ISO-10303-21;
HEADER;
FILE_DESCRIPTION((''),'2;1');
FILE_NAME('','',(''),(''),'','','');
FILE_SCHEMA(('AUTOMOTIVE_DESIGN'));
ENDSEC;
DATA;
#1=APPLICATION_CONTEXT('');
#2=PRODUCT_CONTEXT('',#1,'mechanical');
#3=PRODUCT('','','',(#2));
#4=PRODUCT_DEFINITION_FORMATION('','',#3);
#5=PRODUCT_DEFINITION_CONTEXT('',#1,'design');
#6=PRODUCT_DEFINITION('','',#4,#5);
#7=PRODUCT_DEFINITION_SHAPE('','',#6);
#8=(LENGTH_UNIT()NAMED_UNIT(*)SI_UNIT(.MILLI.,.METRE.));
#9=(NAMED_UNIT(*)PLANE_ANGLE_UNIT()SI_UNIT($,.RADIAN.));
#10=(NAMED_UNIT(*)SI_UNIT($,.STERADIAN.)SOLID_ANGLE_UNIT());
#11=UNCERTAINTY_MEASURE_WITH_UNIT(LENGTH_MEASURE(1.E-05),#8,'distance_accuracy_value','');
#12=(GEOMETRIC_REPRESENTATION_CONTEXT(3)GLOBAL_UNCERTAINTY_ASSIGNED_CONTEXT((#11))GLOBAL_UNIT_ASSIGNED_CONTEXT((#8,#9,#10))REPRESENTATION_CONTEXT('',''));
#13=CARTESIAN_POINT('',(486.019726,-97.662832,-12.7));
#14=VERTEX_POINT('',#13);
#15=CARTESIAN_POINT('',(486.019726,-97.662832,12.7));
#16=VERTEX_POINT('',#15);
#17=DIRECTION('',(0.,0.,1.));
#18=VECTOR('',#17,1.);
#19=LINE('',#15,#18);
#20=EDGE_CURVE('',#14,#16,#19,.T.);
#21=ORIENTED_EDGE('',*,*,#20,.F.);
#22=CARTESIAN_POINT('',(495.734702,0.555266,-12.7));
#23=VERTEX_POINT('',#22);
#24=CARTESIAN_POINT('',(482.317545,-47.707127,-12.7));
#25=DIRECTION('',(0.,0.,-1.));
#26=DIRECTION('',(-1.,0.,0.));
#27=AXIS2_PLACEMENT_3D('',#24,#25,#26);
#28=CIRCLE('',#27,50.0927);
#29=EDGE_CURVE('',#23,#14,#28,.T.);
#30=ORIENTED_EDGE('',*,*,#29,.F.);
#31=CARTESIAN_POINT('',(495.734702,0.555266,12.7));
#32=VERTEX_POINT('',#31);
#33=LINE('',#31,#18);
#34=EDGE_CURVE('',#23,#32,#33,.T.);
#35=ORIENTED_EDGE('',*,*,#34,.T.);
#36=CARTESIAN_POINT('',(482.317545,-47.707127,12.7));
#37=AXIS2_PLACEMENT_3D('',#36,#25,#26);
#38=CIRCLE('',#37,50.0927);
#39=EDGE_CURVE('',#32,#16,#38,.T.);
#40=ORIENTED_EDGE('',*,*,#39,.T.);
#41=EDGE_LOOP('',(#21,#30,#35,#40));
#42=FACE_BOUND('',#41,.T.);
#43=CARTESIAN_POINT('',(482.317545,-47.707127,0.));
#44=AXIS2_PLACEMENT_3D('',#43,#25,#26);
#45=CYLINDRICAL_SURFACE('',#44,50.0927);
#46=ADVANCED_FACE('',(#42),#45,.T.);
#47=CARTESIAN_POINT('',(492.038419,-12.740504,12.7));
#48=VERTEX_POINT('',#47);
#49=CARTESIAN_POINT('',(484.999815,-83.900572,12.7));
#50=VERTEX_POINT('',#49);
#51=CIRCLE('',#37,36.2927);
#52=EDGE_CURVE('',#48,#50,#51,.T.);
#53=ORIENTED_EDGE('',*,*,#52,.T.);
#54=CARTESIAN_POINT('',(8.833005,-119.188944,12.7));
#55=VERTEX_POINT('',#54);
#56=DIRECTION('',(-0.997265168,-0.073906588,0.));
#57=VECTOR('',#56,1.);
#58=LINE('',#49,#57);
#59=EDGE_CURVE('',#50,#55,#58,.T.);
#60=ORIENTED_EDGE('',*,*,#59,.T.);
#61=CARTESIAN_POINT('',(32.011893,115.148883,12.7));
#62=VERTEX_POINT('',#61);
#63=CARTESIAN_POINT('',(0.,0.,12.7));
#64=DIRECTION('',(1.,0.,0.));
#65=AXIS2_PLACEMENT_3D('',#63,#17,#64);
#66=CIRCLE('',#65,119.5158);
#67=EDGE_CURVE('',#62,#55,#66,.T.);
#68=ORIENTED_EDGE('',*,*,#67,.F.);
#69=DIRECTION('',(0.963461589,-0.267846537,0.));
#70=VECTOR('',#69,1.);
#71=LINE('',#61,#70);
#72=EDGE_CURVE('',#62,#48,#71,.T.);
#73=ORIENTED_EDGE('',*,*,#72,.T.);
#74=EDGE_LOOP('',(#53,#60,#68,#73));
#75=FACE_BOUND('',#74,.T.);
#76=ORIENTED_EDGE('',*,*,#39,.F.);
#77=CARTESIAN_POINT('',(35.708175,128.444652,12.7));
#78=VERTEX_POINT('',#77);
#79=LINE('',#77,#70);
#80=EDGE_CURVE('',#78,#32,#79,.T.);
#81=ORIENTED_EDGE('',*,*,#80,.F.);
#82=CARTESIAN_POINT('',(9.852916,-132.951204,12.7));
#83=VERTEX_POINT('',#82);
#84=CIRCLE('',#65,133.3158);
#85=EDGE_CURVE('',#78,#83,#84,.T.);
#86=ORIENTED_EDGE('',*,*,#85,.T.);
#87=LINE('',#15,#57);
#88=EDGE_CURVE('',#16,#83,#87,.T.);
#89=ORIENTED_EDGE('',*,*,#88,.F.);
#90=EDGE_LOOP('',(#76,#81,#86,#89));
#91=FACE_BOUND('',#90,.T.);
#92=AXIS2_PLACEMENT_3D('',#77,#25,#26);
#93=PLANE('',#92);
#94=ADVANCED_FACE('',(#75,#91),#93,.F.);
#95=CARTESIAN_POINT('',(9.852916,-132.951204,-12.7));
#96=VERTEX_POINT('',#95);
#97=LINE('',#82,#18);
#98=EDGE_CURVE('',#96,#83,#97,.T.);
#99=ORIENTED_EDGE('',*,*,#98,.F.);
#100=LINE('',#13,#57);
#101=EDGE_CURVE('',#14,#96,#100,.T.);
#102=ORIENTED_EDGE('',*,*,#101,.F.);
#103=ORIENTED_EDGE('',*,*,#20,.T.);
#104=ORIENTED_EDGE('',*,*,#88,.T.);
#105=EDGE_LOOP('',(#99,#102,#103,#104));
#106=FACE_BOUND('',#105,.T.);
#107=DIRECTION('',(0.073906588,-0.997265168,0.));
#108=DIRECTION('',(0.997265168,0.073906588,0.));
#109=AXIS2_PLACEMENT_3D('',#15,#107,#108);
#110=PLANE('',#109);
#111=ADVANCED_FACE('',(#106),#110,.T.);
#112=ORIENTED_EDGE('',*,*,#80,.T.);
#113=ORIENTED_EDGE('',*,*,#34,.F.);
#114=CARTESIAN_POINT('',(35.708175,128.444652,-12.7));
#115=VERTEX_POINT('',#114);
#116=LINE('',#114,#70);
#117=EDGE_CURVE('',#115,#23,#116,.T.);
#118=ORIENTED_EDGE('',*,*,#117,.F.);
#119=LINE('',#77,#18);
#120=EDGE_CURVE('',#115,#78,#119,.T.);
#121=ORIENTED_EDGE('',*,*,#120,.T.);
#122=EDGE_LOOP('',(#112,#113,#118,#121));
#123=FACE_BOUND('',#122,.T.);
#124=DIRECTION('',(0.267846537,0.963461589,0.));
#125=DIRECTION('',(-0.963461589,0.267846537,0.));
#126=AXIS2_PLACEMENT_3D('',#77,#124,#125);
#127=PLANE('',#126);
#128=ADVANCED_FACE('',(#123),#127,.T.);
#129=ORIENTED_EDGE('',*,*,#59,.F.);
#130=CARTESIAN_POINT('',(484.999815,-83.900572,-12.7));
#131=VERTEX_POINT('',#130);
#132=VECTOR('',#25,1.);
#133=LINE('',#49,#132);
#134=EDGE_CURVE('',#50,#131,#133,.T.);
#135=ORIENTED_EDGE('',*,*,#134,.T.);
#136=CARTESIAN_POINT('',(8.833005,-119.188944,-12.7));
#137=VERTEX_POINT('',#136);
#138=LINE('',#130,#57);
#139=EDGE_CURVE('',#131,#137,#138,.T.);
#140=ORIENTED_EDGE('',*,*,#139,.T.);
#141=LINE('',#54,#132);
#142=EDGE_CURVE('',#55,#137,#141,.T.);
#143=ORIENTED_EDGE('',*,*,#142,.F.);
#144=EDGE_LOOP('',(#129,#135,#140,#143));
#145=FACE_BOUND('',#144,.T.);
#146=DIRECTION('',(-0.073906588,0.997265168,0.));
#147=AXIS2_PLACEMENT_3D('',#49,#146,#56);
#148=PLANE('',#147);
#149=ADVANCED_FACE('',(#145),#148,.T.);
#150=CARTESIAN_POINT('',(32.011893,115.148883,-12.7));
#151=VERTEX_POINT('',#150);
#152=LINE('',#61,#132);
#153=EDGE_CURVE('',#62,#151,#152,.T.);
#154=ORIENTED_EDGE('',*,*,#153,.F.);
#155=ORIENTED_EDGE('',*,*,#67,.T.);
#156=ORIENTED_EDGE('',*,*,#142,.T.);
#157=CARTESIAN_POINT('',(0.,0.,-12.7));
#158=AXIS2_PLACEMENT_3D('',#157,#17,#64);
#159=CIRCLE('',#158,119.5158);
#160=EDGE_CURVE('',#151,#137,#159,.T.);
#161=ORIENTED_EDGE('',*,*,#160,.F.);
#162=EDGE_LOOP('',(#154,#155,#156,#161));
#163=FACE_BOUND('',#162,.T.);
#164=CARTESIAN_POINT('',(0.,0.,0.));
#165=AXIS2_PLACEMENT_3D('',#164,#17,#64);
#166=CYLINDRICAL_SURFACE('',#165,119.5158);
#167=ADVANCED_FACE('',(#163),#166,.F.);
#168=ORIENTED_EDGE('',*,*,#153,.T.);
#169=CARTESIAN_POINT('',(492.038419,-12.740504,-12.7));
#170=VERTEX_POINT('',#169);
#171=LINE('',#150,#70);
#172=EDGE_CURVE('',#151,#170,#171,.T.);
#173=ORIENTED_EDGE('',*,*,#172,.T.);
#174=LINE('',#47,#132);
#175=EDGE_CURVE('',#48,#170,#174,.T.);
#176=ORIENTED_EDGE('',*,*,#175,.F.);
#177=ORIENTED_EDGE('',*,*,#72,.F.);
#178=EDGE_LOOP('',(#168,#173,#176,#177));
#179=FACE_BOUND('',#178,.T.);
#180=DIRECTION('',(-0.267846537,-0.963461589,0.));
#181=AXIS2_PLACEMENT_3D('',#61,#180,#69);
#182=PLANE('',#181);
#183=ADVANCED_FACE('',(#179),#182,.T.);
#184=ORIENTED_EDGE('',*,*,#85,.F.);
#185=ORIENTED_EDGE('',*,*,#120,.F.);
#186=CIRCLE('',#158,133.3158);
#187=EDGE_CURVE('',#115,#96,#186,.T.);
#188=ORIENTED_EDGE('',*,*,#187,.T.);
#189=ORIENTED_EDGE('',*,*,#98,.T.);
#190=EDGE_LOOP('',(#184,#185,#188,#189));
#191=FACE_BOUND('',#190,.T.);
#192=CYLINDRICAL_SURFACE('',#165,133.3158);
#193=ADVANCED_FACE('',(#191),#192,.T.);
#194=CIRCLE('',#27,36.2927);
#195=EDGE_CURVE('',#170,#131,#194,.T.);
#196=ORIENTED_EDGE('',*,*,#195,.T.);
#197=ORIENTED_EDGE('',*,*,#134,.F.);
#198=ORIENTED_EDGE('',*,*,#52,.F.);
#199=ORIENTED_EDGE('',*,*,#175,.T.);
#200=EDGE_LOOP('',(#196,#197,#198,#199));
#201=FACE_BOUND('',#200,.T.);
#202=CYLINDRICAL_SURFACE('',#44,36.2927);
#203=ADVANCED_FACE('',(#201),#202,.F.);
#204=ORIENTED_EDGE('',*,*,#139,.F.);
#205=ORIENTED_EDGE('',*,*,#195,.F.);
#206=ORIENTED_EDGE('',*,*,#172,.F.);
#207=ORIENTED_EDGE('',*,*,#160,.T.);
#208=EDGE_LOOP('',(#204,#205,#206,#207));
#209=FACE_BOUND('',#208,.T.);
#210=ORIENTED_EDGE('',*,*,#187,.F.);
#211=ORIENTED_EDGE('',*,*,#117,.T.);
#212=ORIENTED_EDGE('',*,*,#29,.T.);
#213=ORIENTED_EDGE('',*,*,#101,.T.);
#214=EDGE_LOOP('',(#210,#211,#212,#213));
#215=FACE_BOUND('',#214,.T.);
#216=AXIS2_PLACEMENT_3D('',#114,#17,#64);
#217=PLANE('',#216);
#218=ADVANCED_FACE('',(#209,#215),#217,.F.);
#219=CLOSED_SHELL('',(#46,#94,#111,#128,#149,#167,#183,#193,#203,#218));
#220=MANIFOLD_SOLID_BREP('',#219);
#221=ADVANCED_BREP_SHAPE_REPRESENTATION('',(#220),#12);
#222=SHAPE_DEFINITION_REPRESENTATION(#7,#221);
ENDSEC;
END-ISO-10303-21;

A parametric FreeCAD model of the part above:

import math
import FreeCAD as App
import Part
import Sketcher

V = App.Vector
Q = App.Units.Quantity

doc = App.newDocument("Part")
body = doc.addObject("PartDesign::Body", "Body")

# Sketch on YZ plane
sketch1 = body.newObject("Sketcher::SketchObject", "Sketch")
sketch1.AttachmentSupport = (doc.getObject("YZ_Plane"), [""])
sketch1.MapMode = "FlatFace"
sketch1.addGeometry([
    Part.LineSegment(V(133.3158, 12.7, 0), V(119.5158, 12.7, 0)),
    Part.LineSegment(V(119.5158, 12.7, 0), V(119.5158, -12.7, 0)),
    Part.LineSegment(V(119.5158, -12.7, 0), V(133.3158, -12.7, 0)),
    Part.LineSegment(V(133.3158, -12.7, 0), V(133.3158, 12.7, 0)),
], False)
sketch1.addConstraint([
    Sketcher.Constraint("Coincident", 0, 2, 1, 1),
    Sketcher.Constraint("Coincident", 1, 2, 2, 1),
    Sketcher.Constraint("Coincident", 2, 2, 3, 1),
    Sketcher.Constraint("Coincident", 3, 2, 0, 1),
    Sketcher.Constraint("Horizontal", 0),
    Sketcher.Constraint("Vertical", 1),
    Sketcher.Constraint("Horizontal", 2),
    Sketcher.Constraint("Vertical", 3),
    Sketcher.Constraint("DistanceY", 1, 2, 1, 1, Q("1 in")),
    Sketcher.Constraint("DistanceY", -1, 1, 0, 2, Q("0.5 in")),
    Sketcher.Constraint("DistanceX", 0, 2, 0, 1, Q("13.8 mm")),
    Sketcher.Constraint("DistanceX", -1, 1, 0, 2, Q("119.5158 mm")),
])

# Sketch on XY plane
sketch2 = body.newObject("Sketcher::SketchObject", "Sketch001")
sketch2.AttachmentSupport = (doc.getObject("XY_Plane"), [""])
sketch2.MapMode = "FlatFace"
sketch2.addGeometry([
    Part.LineSegment(V(33.860034, 121.796768, 0), V(493.886561, -6.092619, 0)),
    Part.ArcOfCircle(Part.Circle(V(482.317545, -47.707127, 0), V(0, 0, 1), 43.1927), math.radians(-85.7616), math.radians(74.463837)),
    Part.LineSegment(V(485.509771, -90.781702, 0), V(9.34296, -126.070074, 0)),
    Part.ArcOfCircle(Part.Circle(V(0, 0, 0), V(0, 0, 1), 126.4158), math.radians(74.463837), math.radians(274.2384)),
], False)
sketch2.addConstraint([
    Sketcher.Constraint("Tangent", 0, 2, 1, 2),
    Sketcher.Constraint("Tangent", 1, 1, 2, 1),
    Sketcher.Constraint("Tangent", 2, 2, 3, 2),
    Sketcher.Constraint("Tangent", 3, 1, 0, 1),
    Sketcher.Constraint("Coincident", 3, 3, -1, 1),
    Sketcher.Constraint("Radius", 3, Q("4.977 in")),
    Sketcher.Constraint("Radius", 1, Q("1.7005 in")),
    Sketcher.Constraint("DistanceY", 1, 1, -1, 1, Q("90.781702 mm")),
    Sketcher.Constraint("DistanceX", 2, 2, 0, 2, Q("484.5436 mm")),
])
doc.recompute()

additivepipe = body.newObject("PartDesign::AdditivePipe", "AdditivePipe")
additivepipe.Profile = sketch1
additivepipe.Spine = (sketch2, ["Edge1", "Edge2", "Edge3", "Edge4"])

doc.recompute()
